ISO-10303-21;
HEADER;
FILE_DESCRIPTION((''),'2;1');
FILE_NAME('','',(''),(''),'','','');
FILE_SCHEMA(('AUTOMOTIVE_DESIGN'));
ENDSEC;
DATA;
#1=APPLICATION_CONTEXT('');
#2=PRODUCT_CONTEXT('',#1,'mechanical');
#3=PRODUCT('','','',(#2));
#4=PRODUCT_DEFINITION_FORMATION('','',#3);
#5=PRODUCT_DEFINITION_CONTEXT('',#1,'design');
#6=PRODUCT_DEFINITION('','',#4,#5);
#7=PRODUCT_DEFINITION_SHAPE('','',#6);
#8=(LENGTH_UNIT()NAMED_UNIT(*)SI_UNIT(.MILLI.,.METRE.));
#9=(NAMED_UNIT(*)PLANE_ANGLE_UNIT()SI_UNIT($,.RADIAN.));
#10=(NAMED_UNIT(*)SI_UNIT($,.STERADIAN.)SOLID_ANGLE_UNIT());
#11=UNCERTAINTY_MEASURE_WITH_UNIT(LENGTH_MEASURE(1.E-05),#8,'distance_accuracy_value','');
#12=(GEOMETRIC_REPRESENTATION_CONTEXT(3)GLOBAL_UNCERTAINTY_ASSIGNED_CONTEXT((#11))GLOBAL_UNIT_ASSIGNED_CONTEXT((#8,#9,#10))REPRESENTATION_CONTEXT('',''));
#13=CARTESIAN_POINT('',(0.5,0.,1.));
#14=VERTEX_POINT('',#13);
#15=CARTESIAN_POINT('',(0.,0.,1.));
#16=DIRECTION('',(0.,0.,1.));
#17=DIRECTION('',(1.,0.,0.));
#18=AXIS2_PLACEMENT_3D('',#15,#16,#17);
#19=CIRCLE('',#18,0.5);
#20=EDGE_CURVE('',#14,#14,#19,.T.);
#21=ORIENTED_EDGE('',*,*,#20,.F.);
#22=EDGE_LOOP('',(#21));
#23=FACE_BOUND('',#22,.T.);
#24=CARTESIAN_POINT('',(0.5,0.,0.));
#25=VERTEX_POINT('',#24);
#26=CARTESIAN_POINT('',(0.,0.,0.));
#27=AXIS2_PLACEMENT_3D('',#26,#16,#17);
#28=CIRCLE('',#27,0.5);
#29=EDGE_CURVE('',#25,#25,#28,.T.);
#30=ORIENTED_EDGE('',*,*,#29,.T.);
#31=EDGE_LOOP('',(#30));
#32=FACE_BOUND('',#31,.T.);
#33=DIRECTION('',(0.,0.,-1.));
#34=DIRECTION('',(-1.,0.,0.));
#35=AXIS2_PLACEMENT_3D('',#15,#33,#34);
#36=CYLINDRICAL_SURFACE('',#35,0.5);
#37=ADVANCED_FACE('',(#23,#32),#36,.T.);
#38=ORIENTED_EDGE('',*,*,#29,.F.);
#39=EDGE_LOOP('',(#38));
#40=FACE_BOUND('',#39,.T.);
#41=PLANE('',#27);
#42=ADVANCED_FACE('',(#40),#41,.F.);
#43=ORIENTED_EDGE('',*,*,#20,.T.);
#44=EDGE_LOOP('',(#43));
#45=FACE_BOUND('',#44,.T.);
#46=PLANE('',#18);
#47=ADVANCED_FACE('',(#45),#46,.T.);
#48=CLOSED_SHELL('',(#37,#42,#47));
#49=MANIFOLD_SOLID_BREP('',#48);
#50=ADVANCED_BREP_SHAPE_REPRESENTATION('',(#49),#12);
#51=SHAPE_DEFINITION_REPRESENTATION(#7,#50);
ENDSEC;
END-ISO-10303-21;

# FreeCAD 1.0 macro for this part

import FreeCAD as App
import Part
import Sketcher
Q = App.Units.Quantity

doc = App.newDocument("Part")
params = doc.addObject("Spreadsheet::Sheet", "Params")
for row, (alias, value) in enumerate([
    ("sketch1_diameter", "1 mm"),
    ("pad1_length", "1 mm"),
], start=1):
    params.set(f"A{row}", alias)
    params.set(f"B{row}", "=" + value)
    params.setAlias(f"B{row}", alias)

body = doc.addObject("PartDesign::Body", "Body")

# Sketch on XY plane
sketch1 = body.newObject("Sketcher::SketchObject", "Sketch")
sketch1.AttachmentSupport = (doc.getObject("XY_Plane"), [""])
sketch1.MapMode = "FlatFace"
sketch1.addGeometry(Part.Circle(App.Vector(0, 0, 0), App.Vector(0, 0, 1), 0.5), False)
sketch1.addConstraint(Sketcher.Constraint("Coincident", 0, 3, -1, 1))
sketch1.addConstraint(Sketcher.Constraint("Diameter", 0, Q("1 mm")))
sketch1.setExpression("Constraints[1]", "Params.sketch1_diameter")
pad1 = body.newObject("PartDesign::Pad", "Pad")
pad1.Profile = sketch1
pad1.setExpression("Length", "Params.pad1_length")

doc.recompute()
